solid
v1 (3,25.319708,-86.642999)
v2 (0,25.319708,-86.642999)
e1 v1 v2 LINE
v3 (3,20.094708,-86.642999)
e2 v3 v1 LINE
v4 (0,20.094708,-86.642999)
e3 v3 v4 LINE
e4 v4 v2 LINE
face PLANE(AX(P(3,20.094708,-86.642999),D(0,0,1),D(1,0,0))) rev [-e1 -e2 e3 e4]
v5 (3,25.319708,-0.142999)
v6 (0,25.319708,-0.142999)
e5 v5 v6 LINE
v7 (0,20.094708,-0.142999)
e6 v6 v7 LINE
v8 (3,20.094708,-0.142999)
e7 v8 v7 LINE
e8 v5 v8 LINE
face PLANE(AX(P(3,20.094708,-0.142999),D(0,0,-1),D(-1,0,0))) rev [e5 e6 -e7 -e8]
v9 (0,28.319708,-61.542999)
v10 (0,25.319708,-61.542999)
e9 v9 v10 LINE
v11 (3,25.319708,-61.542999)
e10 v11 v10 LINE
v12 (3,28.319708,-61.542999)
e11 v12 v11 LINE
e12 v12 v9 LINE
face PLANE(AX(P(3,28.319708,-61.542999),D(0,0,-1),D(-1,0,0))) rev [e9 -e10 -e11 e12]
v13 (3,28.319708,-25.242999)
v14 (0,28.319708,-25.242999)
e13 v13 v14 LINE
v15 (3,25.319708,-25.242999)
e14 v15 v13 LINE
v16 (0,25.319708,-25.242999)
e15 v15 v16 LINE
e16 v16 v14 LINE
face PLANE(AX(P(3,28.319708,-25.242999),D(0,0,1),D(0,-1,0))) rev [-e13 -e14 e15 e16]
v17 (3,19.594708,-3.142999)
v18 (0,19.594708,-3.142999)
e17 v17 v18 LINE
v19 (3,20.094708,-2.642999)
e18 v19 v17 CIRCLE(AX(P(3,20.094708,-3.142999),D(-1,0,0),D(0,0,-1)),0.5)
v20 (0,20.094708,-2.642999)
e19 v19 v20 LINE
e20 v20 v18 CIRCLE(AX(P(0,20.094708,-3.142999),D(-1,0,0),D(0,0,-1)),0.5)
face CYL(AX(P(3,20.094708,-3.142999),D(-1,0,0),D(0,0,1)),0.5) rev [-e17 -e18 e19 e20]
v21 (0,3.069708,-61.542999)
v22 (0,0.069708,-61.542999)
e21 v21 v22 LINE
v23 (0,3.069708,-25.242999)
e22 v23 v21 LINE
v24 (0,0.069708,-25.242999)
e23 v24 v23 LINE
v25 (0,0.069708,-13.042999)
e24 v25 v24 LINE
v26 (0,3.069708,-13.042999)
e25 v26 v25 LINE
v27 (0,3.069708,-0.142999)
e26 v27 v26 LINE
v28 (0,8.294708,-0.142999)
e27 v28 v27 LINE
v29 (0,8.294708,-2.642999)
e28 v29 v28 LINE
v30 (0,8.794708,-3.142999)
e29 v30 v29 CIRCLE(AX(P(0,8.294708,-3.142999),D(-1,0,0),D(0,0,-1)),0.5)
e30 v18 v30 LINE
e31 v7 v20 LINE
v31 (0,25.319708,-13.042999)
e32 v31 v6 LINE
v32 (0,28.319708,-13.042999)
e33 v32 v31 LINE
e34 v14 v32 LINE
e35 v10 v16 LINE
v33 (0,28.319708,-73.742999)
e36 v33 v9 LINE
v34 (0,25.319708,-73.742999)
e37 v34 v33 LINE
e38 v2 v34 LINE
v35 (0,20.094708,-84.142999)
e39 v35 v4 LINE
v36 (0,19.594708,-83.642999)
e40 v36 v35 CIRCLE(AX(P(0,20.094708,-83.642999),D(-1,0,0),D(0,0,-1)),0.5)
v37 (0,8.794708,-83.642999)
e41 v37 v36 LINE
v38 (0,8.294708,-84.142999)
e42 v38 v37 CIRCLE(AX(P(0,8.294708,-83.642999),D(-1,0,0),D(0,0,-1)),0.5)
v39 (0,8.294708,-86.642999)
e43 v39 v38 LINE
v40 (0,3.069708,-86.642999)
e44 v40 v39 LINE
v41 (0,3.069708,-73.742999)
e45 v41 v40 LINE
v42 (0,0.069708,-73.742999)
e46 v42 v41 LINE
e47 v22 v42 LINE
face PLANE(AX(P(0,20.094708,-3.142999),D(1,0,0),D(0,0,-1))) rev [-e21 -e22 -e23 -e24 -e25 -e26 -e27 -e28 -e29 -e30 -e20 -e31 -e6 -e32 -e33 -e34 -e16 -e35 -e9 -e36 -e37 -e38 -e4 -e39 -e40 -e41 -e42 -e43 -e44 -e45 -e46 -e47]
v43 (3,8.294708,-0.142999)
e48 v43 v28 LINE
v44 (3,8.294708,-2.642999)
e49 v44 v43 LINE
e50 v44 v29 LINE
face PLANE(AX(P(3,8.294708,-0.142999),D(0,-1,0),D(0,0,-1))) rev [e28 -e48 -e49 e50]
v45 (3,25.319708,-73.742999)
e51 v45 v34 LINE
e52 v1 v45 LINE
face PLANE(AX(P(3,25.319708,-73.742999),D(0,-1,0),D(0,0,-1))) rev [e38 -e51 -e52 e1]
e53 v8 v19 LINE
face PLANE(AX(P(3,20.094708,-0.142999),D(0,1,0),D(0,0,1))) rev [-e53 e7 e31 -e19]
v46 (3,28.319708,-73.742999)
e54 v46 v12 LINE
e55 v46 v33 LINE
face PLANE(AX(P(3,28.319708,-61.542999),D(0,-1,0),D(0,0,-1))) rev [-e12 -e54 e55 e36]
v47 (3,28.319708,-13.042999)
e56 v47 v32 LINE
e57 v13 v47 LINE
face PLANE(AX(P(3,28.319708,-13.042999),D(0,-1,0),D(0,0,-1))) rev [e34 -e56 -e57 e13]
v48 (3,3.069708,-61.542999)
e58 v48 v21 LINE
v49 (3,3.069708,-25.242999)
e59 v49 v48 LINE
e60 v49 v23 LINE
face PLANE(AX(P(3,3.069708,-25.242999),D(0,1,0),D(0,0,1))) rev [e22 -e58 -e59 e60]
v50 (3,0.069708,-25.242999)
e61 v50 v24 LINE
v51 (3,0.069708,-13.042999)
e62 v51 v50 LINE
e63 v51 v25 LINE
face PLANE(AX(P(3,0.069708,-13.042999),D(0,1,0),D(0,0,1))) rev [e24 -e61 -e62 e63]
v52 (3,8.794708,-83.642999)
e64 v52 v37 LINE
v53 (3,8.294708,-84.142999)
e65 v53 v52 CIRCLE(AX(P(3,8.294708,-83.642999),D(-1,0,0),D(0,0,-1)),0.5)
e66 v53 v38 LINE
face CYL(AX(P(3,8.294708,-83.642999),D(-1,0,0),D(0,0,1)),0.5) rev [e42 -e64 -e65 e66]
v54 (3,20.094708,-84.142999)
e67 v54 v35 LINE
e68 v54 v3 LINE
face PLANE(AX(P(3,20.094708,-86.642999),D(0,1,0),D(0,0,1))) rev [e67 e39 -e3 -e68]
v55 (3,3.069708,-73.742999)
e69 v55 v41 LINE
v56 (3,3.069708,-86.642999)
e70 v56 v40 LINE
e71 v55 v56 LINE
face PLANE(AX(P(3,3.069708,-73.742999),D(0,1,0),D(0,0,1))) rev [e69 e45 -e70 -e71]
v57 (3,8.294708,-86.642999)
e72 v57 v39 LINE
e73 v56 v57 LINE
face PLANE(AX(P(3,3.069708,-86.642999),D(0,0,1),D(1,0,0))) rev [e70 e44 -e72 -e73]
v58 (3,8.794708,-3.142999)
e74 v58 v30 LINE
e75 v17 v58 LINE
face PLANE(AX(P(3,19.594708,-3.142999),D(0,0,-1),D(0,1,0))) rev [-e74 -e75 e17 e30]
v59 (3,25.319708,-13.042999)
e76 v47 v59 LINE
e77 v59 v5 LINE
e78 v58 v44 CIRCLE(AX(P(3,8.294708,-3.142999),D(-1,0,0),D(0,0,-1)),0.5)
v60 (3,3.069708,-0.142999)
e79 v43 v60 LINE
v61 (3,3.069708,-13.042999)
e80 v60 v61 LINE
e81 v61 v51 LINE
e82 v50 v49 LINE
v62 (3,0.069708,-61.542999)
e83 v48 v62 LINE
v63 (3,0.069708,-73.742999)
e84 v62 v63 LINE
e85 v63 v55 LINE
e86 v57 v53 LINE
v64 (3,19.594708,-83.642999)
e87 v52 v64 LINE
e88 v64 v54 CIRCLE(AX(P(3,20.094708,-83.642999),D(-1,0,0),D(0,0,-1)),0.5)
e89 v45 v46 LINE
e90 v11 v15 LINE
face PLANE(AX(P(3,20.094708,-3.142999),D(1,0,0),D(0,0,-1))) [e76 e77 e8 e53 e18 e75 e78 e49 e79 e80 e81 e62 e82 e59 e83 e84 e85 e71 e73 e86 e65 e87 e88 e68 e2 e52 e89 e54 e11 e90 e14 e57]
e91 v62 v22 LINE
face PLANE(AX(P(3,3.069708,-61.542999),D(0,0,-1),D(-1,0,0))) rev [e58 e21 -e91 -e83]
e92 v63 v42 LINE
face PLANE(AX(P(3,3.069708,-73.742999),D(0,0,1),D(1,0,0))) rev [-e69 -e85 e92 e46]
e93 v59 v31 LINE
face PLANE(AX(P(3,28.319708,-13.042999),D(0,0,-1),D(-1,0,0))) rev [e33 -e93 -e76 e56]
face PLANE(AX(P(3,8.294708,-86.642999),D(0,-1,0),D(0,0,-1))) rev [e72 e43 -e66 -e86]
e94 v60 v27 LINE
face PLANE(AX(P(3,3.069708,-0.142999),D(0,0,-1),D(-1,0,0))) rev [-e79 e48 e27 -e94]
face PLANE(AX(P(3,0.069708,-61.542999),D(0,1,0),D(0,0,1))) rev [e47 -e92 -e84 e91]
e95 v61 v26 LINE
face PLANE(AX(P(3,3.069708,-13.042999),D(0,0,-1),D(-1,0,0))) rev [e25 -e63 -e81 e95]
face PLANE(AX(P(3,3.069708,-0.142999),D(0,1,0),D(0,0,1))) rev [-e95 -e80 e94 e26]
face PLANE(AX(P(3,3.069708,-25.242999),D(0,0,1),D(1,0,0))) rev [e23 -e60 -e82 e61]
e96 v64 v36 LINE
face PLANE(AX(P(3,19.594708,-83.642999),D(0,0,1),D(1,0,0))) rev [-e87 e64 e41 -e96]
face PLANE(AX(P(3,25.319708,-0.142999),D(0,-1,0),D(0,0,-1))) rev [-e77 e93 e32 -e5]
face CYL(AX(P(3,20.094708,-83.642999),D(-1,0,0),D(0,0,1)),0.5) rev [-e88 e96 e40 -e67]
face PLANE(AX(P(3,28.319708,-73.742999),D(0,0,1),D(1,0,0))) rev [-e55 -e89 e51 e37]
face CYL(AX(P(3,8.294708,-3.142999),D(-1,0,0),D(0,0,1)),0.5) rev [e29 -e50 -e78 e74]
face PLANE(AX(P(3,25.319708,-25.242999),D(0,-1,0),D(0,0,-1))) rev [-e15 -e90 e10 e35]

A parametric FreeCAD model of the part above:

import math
import FreeCAD as App
import Part
import Sketcher
from FreeCAD import Vector
Q = App.Units.Quantity

doc = App.newDocument("Part")
body = doc.addObject("PartDesign::Body", "Body")

# Sketch on YZ plane
sketch1 = body.newObject("Sketcher::SketchObject", "Sketch")
sketch1.AttachmentSupport = (doc.getObject("YZ_Plane"), [""])
sketch1.MapMode = "FlatFace"
sketch1.addGeometry([
    Part.LineSegment(Vector(28.3, -73.7, 0), Vector(28.3, -61.5, 0)),  # 0
    Part.LineSegment(Vector(28.3, -61.5, 0), Vector(25.3, -61.5, 0)),  # 1
    Part.LineSegment(Vector(25.3, -61.5, 0), Vector(25.3, -25.2, 0)),  # 2
    Part.LineSegment(Vector(25.3, -25.2, 0), Vector(28.3, -25.2, 0)),  # 3
    Part.LineSegment(Vector(28.3, -25.2, 0), Vector(28.3, -13, 0)),  # 4
    Part.LineSegment(Vector(28.3, -13, 0), Vector(25.3, -13, 0)),  # 5
    Part.LineSegment(Vector(25.3, -13, 0), Vector(25.3, -0.1, 0)),  # 6
    Part.LineSegment(Vector(25.3, -0.1, 0), Vector(20.1, -0.1, 0)),  # 7
    Part.LineSegment(Vector(20.1, -0.1, 0), Vector(20.1, -2.6, 0)),  # 8
    Part.ArcOfCircle(Part.Circle(Vector(20.1, -3.1, 0), Vector(0, 0, 1), 0.5), math.radians(180), math.radians(450)),  # 9
    Part.LineSegment(Vector(19.6, -3.1, 0), Vector(8.8, -3.1, 0)),  # 10
    Part.ArcOfCircle(Part.Circle(Vector(8.3, -3.1, 0), Vector(0, 0, 1), 0.5), math.radians(90), math.radians(360)),  # 11
    Part.LineSegment(Vector(8.3, -2.6, 0), Vector(8.3, -0.1, 0)),  # 12
    Part.LineSegment(Vector(8.3, -0.1, 0), Vector(3.1, -0.1, 0)),  # 13
    Part.LineSegment(Vector(3.1, -0.1, 0), Vector(3.1, -13, 0)),  # 14
    Part.LineSegment(Vector(3.1, -13, 0), Vector(0.1, -13, 0)),  # 15
    Part.LineSegment(Vector(0.1, -13, 0), Vector(0.1, -25.2, 0)),  # 16
    Part.LineSegment(Vector(0.1, -25.2, 0), Vector(3.1, -25.2, 0)),  # 17
    Part.LineSegment(Vector(3.1, -25.2, 0), Vector(3.1, -61.5, 0)),  # 18
    Part.LineSegment(Vector(3.1, -61.5, 0), Vector(0.1, -61.5, 0)),  # 19
    Part.LineSegment(Vector(0.1, -61.5, 0), Vector(0.1, -73.7, 0)),  # 20
    Part.LineSegment(Vector(0.1, -73.7, 0), Vector(3.1, -73.7, 0)),  # 21
    Part.LineSegment(Vector(3.1, -73.7, 0), Vector(3.1, -86.6, 0)),  # 22
    Part.LineSegment(Vector(3.1, -86.6, 0), Vector(8.3, -86.6, 0)),  # 23
    Part.LineSegment(Vector(8.3, -86.6, 0), Vector(8.3, -84.1, 0)),  # 24
    Part.ArcOfCircle(Part.Circle(Vector(8.3, -83.6, 0), Vector(0, 0, 1), 0.5), math.radians(0), math.radians(270)),  # 25
    Part.LineSegment(Vector(8.8, -83.6, 0), Vector(19.6, -83.6, 0)),  # 26
    Part.ArcOfCircle(Part.Circle(Vector(20.1, -83.6, 0), Vector(0, 0, 1), 0.5), math.radians(-90), math.radians(180)),  # 27
    Part.LineSegment(Vector(20.1, -84.1, 0), Vector(20.1, -86.6, 0)),  # 28
    Part.LineSegment(Vector(20.1, -86.6, 0), Vector(25.3, -86.6, 0)),  # 29
    Part.LineSegment(Vector(25.3, -86.6, 0), Vector(25.3, -73.7, 0)),  # 30
    Part.LineSegment(Vector(25.3, -73.7, 0), Vector(28.3, -73.7, 0)),  # 31
], False)
sketch1.addConstraint([
    Sketcher.Constraint("Coincident", 0, 2, 1, 1),
    Sketcher.Constraint("Coincident", 1, 2, 2, 1),
    Sketcher.Constraint("Coincident", 2, 2, 3, 1),
    Sketcher.Constraint("Coincident", 3, 2, 4, 1),
    Sketcher.Constraint("Coincident", 4, 2, 5, 1),
    Sketcher.Constraint("Coincident", 5, 2, 6, 1),
    Sketcher.Constraint("Coincident", 6, 2, 7, 1),
    Sketcher.Constraint("Coincident", 7, 2, 8, 1),
    Sketcher.Constraint("Coincident", 8, 2, 9, 2),
    Sketcher.Constraint("Coincident", 9, 1, 10, 1),
    Sketcher.Constraint("Coincident", 10, 2, 11, 2),
    Sketcher.Constraint("Coincident", 11, 1, 12, 1),
    Sketcher.Constraint("Coincident", 12, 2, 13, 1),
    Sketcher.Constraint("Coincident", 13, 2, 14, 1),
    Sketcher.Constraint("Coincident", 14, 2, 15, 1),
    Sketcher.Constraint("Coincident", 15, 2, 16, 1),
    Sketcher.Constraint("Coincident", 16, 2, 17, 1),
    Sketcher.Constraint("Coincident", 17, 2, 18, 1),
    Sketcher.Constraint("Coincident", 18, 2, 19, 1),
    Sketcher.Constraint("Coincident", 19, 2, 20, 1),
    Sketcher.Constraint("Coincident", 20, 2, 21, 1),
    Sketcher.Constraint("Coincident", 21, 2, 22, 1),
    Sketcher.Constraint("Coincident", 22, 2, 23, 1),
    Sketcher.Constraint("Coincident", 23, 2, 24, 1),
    Sketcher.Constraint("Coincident", 24, 2, 25, 2),
    Sketcher.Constraint("Coincident", 25, 1, 26, 1),
    Sketcher.Constraint("Coincident", 26, 2, 27, 2),
    Sketcher.Constraint("Coincident", 27, 1, 28, 1),
    Sketcher.Constraint("Coincident", 28, 2, 29, 1),
    Sketcher.Constraint("Coincident", 29, 2, 30, 1),
    Sketcher.Constraint("Coincident", 30, 2, 31, 1),
    Sketcher.Constraint("Coincident", 31, 2, 0, 1),
    Sketcher.Constraint("Vertical", 0),
    Sketcher.Constraint("Horizontal", 1),
    Sketcher.Constraint("Vertical", 2),
    Sketcher.Constraint("Horizontal", 3),
    Sketcher.Constraint("Vertical", 4),
    Sketcher.Constraint("Horizontal", 5),
    Sketcher.Constraint("Vertical", 6),
    Sketcher.Constraint("Horizontal", 7),
    Sketcher.Constraint("Vertical", 8),
    Sketcher.Constraint("Horizontal", 10),
    Sketcher.Constraint("Vertical", 12),
    Sketcher.Constraint("Horizontal", 13),
    Sketcher.Constraint("Vertical", 14),
    Sketcher.Constraint("Horizontal", 15),
    Sketcher.Constraint("Vertical", 16),
    Sketcher.Constraint("Horizontal", 17),
    Sketcher.Constraint("Vertical", 18),
    Sketcher.Constraint("Horizontal", 19),
    Sketcher.Constraint("Vertical", 20),
    Sketcher.Constraint("Horizontal", 21),
    Sketcher.Constraint("Vertical", 22),
    Sketcher.Constraint("Horizontal", 23),
    Sketcher.Constraint("Vertical", 24),
    Sketcher.Constraint("Horizontal", 26),
    Sketcher.Constraint("Vertical", 28),
    Sketcher.Constraint("Horizontal", 29),
    Sketcher.Constraint("Vertical", 30),
    Sketcher.Constraint("Horizontal", 31),
    Sketcher.Constraint("Equal", 9, 11),
    Sketcher.Constraint("Equal", 11, 25),
    Sketcher.Constraint("Equal", 25, 27),
    Sketcher.Constraint("Horizontal", 9, 3, 11, 3),
    Sketcher.Constraint("Horizontal", 25, 3, 27, 3),
    Sketcher.Constraint("Horizontal", 11, 3, 9, 1),
    Sketcher.Constraint("Horizontal", 7, 2, 12, 2),
    Sketcher.Constraint("Horizontal", 5, 2, 14, 2),
    Sketcher.Constraint("Horizontal", 3, 2, 16, 2),
    Sketcher.Constraint("Horizontal", 1, 2, 18, 2),
    Sketcher.Constraint("Horizontal", 27, 3, 25, 1),
    Sketcher.Constraint("Horizontal", 23, 2, 28, 2),
    Sketcher.Constraint("Horizontal", 21, 2, 30, 2),
    Sketcher.Constraint("Vertical", 11, 3, 25, 3),
    Sketcher.Constraint("Vertical", 9, 3, 27, 3),
    Sketcher.Constraint("Vertical", 0, 2, 3, 2),
    Sketcher.Constraint("Vertical", 2, 2, 5, 2),
    Sketcher.Constraint("Vertical", 27, 3, 7, 2),
    Sketcher.Constraint("Vertical", 25, 3, 11, 1),
    Sketcher.Constraint("Vertical", 14, 2, 17, 2),
    Sketcher.Constraint("Vertical", 16, 2, 19, 2),
    Sketcher.Constraint("Vertical", 18, 2, 21, 2),
    Sketcher.Constraint("Vertical", 12, 2, 23, 2),
    Sketcher.Constraint("Vertical", 8, 2, 27, 1),
    Sketcher.Constraint("Vertical", 6, 2, 29, 2),
    Sketcher.Constraint("Equal", 7, 13),
    Sketcher.Constraint("Equal", 5, 15),
    Sketcher.Constraint("Equal", 0, 4),
    Sketcher.Constraint("Equal", 14, 22),
    Sketcher.Constraint("Equal", 12, 24),
    Sketcher.Constraint("Radius", 9, Q("0.5 mm")),
    Sketcher.Constraint("DistanceX", 1, 2, 1, 1, Q("3 mm")),
    Sketcher.Constraint("DistanceX", 10, 2, 10, 1, Q("10.8 mm")),
    Sketcher.Constraint("DistanceY", 0, 1, 0, 2, Q("12.2 mm")),
    Sketcher.Constraint("DistanceY", 2, 1, 2, 2, Q("36.3 mm")),
    Sketcher.Constraint("DistanceY", 6, 1, 6, 2, Q("12.9 mm")),
    Sketcher.Constraint("DistanceY", 8, 2, 8, 1, Q("2.5 mm")),
    Sketcher.Constraint("DistanceX", 7, 2, 7, 1, Q("5.225 mm")),
    Sketcher.Constraint("DistanceY", 9, 3, -1, 1, Q("3.142999 mm")),
    Sketcher.Constraint("DistanceX", -1, 1, 9, 3, Q("20.094708 mm")),
])
pad1 = body.newObject("PartDesign::Pad", "Pad")
pad1.Profile = sketch1
pad1.Length = 3

doc.recompute()
